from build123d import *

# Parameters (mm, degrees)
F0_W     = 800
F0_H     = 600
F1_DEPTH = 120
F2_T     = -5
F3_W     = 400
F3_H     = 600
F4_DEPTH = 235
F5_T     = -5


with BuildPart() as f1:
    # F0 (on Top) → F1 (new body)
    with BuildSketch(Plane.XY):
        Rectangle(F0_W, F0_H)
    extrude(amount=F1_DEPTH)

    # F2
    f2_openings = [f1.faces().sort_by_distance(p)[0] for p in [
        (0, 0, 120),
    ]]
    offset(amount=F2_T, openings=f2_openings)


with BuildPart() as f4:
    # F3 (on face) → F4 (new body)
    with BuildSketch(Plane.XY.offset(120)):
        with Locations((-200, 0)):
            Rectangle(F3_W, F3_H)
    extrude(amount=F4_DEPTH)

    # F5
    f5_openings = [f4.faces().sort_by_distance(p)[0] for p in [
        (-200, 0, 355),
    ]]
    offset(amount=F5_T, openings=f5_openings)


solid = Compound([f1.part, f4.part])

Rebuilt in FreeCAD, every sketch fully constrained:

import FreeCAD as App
import Part
import Sketcher

V = App.Vector


def faces_at(feature, points):
    """Names of the faces that lie closest to the given points."""
    faces = feature.Shape.Faces
    near = lambda p: min(range(len(faces)), key=lambda i: faces[i].distToShape(Part.Vertex(*p))[0])
    return sorted({f"Face{near(p) + 1}" for p in points})


def add_polygon(sketch, points):
    """Adds a closed chain of lines whose ends are joined by coincident constraints."""
    first, n = sketch.GeometryCount, len(points)
    for a, b in zip(points, points[1:] + points[:1]):
        sketch.addGeometry(Part.LineSegment(App.Vector(*a, 0), App.Vector(*b, 0)), False)
    for i in range(n):
        sketch.addConstraint(Sketcher.Constraint("Coincident", first + i, 2, first + (i + 1) % n, 1))

doc = App.newDocument("Part")
body = doc.addObject("PartDesign::Body", "Body")

# Sketch on XY plane
sketch1 = body.newObject("Sketcher::SketchObject", "Sketch")
sketch1.AttachmentSupport = (doc.getObject("XY_Plane"), [""])
sketch1.MapMode = "FlatFace"
add_polygon(sketch1, [(-400, 300), (-400, -300), (400, -300), (400, 300)])  # lines 0-3
sketch1.addConstraint([
    Sketcher.Constraint("Vertical", 0),
    Sketcher.Constraint("Horizontal", 1),
    Sketcher.Constraint("Vertical", 2),
    Sketcher.Constraint("Horizontal", 3),
    Sketcher.Constraint("Symmetric", 0, 2, 2, 2, -1, 1),
    Sketcher.Constraint("DistanceX", 1, 1, 1, 2, 800.0),
    Sketcher.Constraint("DistanceY", 0, 2, 0, 1, 600.0),
])
pad1 = body.newObject("PartDesign::Pad", "Pad")
pad1.Profile = sketch1
pad1.Length = 120
doc.recompute()

thickness = body.newObject("PartDesign::Thickness", "Thickness")
thickness.Base = (pad1, faces_at(pad1, [(0, 0, 120)]))
thickness.Value = 5
thickness.Reversed = True
thickness.Join = "Arc"
body2 = doc.addObject("PartDesign::Body", "Body001")

# Sketch on XY plane
sketch2 = body2.newObject("Sketcher::SketchObject", "Sketch001")
sketch2.AttachmentSupport = (doc.getObject("XY_Plane001"), [""])
sketch2.MapMode = "FlatFace"
sketch2.AttachmentOffset = App.Placement(V(0, 0, 120), App.Rotation())
add_polygon(sketch2, [(-400, 300), (-400, -300), (0, -300), (0, 300)])  # lines 0-3
sketch2.addConstraint([
    Sketcher.Constraint("Vertical", 0),
    Sketcher.Constraint("Horizontal", 1),
    Sketcher.Constraint("Vertical", 2),
    Sketcher.Constraint("Horizontal", 3),
    Sketcher.Constraint("Symmetric", 1, 2, 2, 2, -1, 1),
    Sketcher.Constraint("DistanceX", 1, 1, 1, 2, 400.0),
    Sketcher.Constraint("DistanceY", 0, 2, 0, 1, 600.0),
])
pad2 = body2.newObject("PartDesign::Pad", "Pad001")
pad2.Profile = sketch2
pad2.Length = 235
doc.recompute()

thickness2 = body2.newObject("PartDesign::Thickness", "Thickness001")
thickness2.Base = (pad2, faces_at(pad2, [(-200, 0, 355)]))
thickness2.Value = 5
thickness2.Reversed = True
thickness2.Join = "Arc"

doc.recompute()
